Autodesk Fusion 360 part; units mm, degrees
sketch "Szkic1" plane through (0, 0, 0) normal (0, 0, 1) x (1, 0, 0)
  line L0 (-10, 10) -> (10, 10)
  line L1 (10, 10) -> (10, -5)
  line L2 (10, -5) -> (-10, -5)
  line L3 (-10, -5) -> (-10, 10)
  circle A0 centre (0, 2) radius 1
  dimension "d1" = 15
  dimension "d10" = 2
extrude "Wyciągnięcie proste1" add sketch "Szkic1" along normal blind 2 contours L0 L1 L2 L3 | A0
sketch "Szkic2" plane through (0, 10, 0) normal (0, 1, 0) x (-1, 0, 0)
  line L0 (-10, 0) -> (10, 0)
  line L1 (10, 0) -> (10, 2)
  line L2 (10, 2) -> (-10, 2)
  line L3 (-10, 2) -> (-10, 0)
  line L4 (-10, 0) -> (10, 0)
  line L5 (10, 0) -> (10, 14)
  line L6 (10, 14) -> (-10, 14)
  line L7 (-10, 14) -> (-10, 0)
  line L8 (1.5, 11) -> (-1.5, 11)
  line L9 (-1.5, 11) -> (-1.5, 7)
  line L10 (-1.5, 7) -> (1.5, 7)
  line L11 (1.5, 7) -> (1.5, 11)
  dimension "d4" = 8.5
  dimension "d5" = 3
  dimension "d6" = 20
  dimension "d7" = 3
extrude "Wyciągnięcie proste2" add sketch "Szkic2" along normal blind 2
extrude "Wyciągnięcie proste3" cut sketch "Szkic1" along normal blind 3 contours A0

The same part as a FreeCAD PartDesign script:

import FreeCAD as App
import Part
import Sketcher

V = App.Vector
Q = App.Units.Quantity


def add_polygon(sketch, points):
    """Adds a closed chain of lines whose ends are joined by coincident constraints."""
    first, n = sketch.GeometryCount, len(points)
    for a, b in zip(points, points[1:] + points[:1]):
        sketch.addGeometry(Part.LineSegment(App.Vector(*a, 0), App.Vector(*b, 0)), False)
    for i in range(n):
        sketch.addConstraint(Sketcher.Constraint("Coincident", first + i, 2, first + (i + 1) % n, 1))

doc = App.newDocument("Part")
params = doc.addObject("Spreadsheet::Sheet", "Params")
for row, (alias, value) in enumerate([
    ("sketch1_height", "15 mm"),
    ("sketch1_width", "20 mm"),
    ("pad1_length", "2 mm"),
    ("sketch2_width", "20 mm"),
    ("sketch2_width2", "3 mm"),
    ("sketch2_height", "14 mm"),
    ("sketch2_height2", "4 mm"),
    ("pad2_length", "2 mm"),
    ("sketch3_diameter", "2 mm"),
    ("pocket1_length", "3 mm"),
], start=1):
    params.set(f"A{row}", alias)
    params.set(f"B{row}", "=" + value)
    params.setAlias(f"B{row}", alias)

body = doc.addObject("PartDesign::Body", "Body")

# Sketch on XY plane
sketch1 = doc.addObject("Sketcher::SketchObject", "Sketch")
body.addObject(sketch1)
sketch1.AttachmentSupport = (doc.XY_Plane, [""])
sketch1.MapMode = "FlatFace"
add_polygon(sketch1, [(10, 10), (-10, 10), (-10, -5), (10, -5)])  # lines 0-3
sketch1.addConstraint(Sketcher.Constraint("Horizontal", 0))
sketch1.addConstraint(Sketcher.Constraint("Vertical", 1))
sketch1.addConstraint(Sketcher.Constraint("Horizontal", 2))
sketch1.addConstraint(Sketcher.Constraint("Vertical", 3))
sketch1.addConstraint(Sketcher.Constraint("DistanceY", 1, 2, 1, 1, Q("15 mm")))
sketch1.addConstraint(Sketcher.Constraint("DistanceX", 0, 2, 0, 1, Q("20 mm")))
sketch1.addConstraint(Sketcher.Constraint("DistanceX", 0, 2, -1, 1, Q("10 mm")))
sketch1.addConstraint(Sketcher.Constraint("DistanceY", -1, 1, 0, 2, Q("10 mm")))
sketch1.setExpression("Constraints[8]", "Params.sketch1_height")
sketch1.setExpression("Constraints[9]", "Params.sketch1_width")
pad1 = doc.addObject("PartDesign::Pad", "Pad")
body.addObject(pad1)
pad1.Profile = sketch1
pad1.setExpression("Length", "Params.pad1_length")

# Sketch on XZ plane
sketch2 = doc.addObject("Sketcher::SketchObject", "Sketch001")
body.addObject(sketch2)
sketch2.AttachmentSupport = (doc.XZ_Plane, [""])
sketch2.MapMode = "FlatFace"
sketch2.AttachmentOffset = App.Placement(V(0, 0, -10), App.Rotation())
add_polygon(sketch2, [(10, 0), (-10, 0), (-10, 14), (10, 14)])  # lines 0-3
add_polygon(sketch2, [(-1.5, 11), (-1.5, 7), (1.5, 7), (1.5, 11)])  # lines 4-7
sketch2.addConstraint(Sketcher.Constraint("Horizontal", 0))
sketch2.addConstraint(Sketcher.Constraint("Vertical", 1))
sketch2.addConstraint(Sketcher.Constraint("Horizontal", 2))
sketch2.addConstraint(Sketcher.Constraint("Vertical", 3))
sketch2.addConstraint(Sketcher.Constraint("Vertical", 4))
sketch2.addConstraint(Sketcher.Constraint("Horizontal", 5))
sketch2.addConstraint(Sketcher.Constraint("Vertical", 6))
sketch2.addConstraint(Sketcher.Constraint("Horizontal", 7))
sketch2.addConstraint(Sketcher.Constraint("Symmetric", 0, 2, 3, 2, -1, 1))
sketch2.addConstraint(Sketcher.Constraint("DistanceX", 0, 2, 0, 1, Q("20 mm")))
sketch2.addConstraint(Sketcher.Constraint("DistanceX", 5, 1, 5, 2, Q("3 mm")))
sketch2.addConstraint(Sketcher.Constraint("DistanceY", 6, 2, 2, 2, Q("3 mm")))
sketch2.addConstraint(Sketcher.Constraint("DistanceX", 0, 2, 4, 2, Q("8.5 mm")))
sketch2.addConstraint(Sketcher.Constraint("DistanceY", 1, 1, 1, 2, Q("14 mm")))
sketch2.addConstraint(Sketcher.Constraint("DistanceY", 4, 2, 4, 1, Q("4 mm")))
sketch2.setExpression("Constraints[17]", "Params.sketch2_width")
sketch2.setExpression("Constraints[18]", "Params.sketch2_width2")
sketch2.setExpression("Constraints[21]", "Params.sketch2_height")
sketch2.setExpression("Constraints[22]", "Params.sketch2_height2")
pad2 = doc.addObject("PartDesign::Pad", "Pad001")
body.addObject(pad2)
pad2.Profile = sketch2
pad2.setExpression("Length", "Params.pad2_length")
pad2.Reversed = True

# Sketch on XY plane
sketch3 = doc.addObject("Sketcher::SketchObject", "Sketch002")
body.addObject(sketch3)
sketch3.AttachmentSupport = (doc.XY_Plane, [""])
sketch3.MapMode = "FlatFace"
sketch3.addGeometry(Part.Circle(V(0, 2, 0), V(0, 0, 1), 1), False)
sketch3.addConstraint(Sketcher.Constraint("PointOnObject", 0, 3, -2))
sketch3.addConstraint(Sketcher.Constraint("Diameter", 0, Q("2 mm")))
sketch3.addConstraint(Sketcher.Constraint("DistanceY", -1, 1, 0, 3, Q("2 mm")))
sketch3.setExpression("Constraints[1]", "Params.sketch3_diameter")
pocket1 = doc.addObject("PartDesign::Pocket", "Pocket")
body.addObject(pocket1)
pocket1.Profile = sketch3
pocket1.setExpression("Length", "Params.pocket1_length")
pocket1.Reversed = True

doc.recompute()
